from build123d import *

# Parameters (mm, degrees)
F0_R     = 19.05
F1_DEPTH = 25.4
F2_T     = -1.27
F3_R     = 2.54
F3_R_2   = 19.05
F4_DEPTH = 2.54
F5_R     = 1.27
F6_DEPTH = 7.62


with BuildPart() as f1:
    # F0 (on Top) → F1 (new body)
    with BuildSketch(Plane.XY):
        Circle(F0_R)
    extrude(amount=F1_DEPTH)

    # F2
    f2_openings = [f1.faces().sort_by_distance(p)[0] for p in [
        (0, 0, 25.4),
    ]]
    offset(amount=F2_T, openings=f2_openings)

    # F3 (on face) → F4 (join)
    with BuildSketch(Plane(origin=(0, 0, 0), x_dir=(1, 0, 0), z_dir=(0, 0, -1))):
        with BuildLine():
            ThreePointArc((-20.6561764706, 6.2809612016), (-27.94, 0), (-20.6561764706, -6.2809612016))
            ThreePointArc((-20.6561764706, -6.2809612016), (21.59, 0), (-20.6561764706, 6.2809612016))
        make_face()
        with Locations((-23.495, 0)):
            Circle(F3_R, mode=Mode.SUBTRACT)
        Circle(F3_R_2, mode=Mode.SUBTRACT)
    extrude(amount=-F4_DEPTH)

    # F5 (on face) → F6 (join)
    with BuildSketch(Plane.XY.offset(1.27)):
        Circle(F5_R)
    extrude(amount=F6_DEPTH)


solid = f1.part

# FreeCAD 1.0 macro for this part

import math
import FreeCAD as App
import Part
import Sketcher

V = App.Vector
Q = App.Units.Quantity


def faces_at(feature, points):
    """Names of the faces that lie closest to the given points."""
    faces = feature.Shape.Faces
    near = lambda p: min(range(len(faces)), key=lambda i: faces[i].distToShape(Part.Vertex(*p))[0])
    return sorted({f"Face{near(p) + 1}" for p in points})

doc = App.newDocument("Part")
body = doc.addObject("PartDesign::Body", "Body")

# Sketch on XY plane
sketch1 = doc.addObject("Sketcher::SketchObject", "Sketch")
body.addObject(sketch1)
sketch1.AttachmentSupport = (doc.XY_Plane, [""])
sketch1.MapMode = "FlatFace"
sketch1.addGeometry(Part.Circle(V(0, 0, 0), V(0, 0, 1), 19), False)
sketch1.addConstraint([
    Sketcher.Constraint("Coincident", 0, 3, -1, 1),
    Sketcher.Constraint("Diameter", 0, Q("1.5 in")),
])
pad1 = doc.addObject("PartDesign::Pad", "Pad")
body.addObject(pad1)
pad1.Profile = sketch1
pad1.Length = Q("1 in")
doc.recompute()

thickness = doc.addObject("PartDesign::Thickness", "Thickness")
body.addObject(thickness)
thickness.Base = (pad1, faces_at(pad1, [(0, 0, 25.4)]))
thickness.Value = Q("0.05 in")
thickness.Reversed = True
thickness.Join = "Arc"

# Sketch on XY plane
sketch2 = doc.addObject("Sketcher::SketchObject", "Sketch001")
body.addObject(sketch2)
sketch2.AttachmentSupport = (doc.XY_Plane, [""])
sketch2.MapMode = "FlatFace"
sketch2.addGeometry([
    Part.ArcOfCircle(Part.Circle(V(-21.6, 0, 0), V(0, 0, 1), 6.3), math.radians(82), math.radians(278)),
    Part.ArcOfCircle(Part.Circle(V(0, 0, 0), V(0, 0, 1), 21.6), math.radians(-163), math.radians(163)),
    Part.Circle(V(-23.5, 0, 0), V(0, 0, 1), 2.5),
    Part.Circle(V(0, 0, 0), V(0, 0, 1), 19.1),
], False)
sketch2.addConstraint([
    Sketcher.Constraint("Coincident", 0, 1, 1, 2),
    Sketcher.Constraint("Coincident", 1, 1, 0, 2),
    Sketcher.Constraint("Coincident", 1, 3, -1, 1),
    Sketcher.Constraint("Coincident", 3, 3, -1, 1),
    Sketcher.Constraint("PointOnObject", 0, 3, -1),
    Sketcher.Constraint("PointOnObject", 2, 3, -1),
    Sketcher.Constraint("Diameter", 2, Q("0.2 in")),
    Sketcher.Constraint("Diameter", 3, Q("1.5 in")),
    Sketcher.Constraint("Radius", 0, Q("0.25 in")),
    Sketcher.Constraint("Radius", 1, Q("0.85 in")),
    Sketcher.Constraint("DistanceX", 0, 3, -1, 1, Q("0.85 in")),
    Sketcher.Constraint("DistanceX", 2, 3, -1, 1, Q("0.925 in")),
])
pad2 = doc.addObject("PartDesign::Pad", "Pad001")
body.addObject(pad2)
pad2.Profile = sketch2
pad2.Length = Q("0.1 in")

# Sketch on XY plane
sketch3 = doc.addObject("Sketcher::SketchObject", "Sketch002")
body.addObject(sketch3)
sketch3.AttachmentSupport = (doc.XY_Plane, [""])
sketch3.MapMode = "FlatFace"
sketch3.AttachmentOffset = App.Placement(V(0, 0, 0.05 * 25.4), App.Rotation())
sketch3.addGeometry(Part.Circle(V(0, 0, 0), V(0, 0, 1), 1.3), False)
sketch3.addConstraint([
    Sketcher.Constraint("Coincident", 0, 3, -1, 1),
    Sketcher.Constraint("Diameter", 0, Q("0.1 in")),
])
pad3 = doc.addObject("PartDesign::Pad", "Pad002")
body.addObject(pad3)
pad3.Profile = sketch3
pad3.Length = Q("0.3 in")

doc.recompute()
